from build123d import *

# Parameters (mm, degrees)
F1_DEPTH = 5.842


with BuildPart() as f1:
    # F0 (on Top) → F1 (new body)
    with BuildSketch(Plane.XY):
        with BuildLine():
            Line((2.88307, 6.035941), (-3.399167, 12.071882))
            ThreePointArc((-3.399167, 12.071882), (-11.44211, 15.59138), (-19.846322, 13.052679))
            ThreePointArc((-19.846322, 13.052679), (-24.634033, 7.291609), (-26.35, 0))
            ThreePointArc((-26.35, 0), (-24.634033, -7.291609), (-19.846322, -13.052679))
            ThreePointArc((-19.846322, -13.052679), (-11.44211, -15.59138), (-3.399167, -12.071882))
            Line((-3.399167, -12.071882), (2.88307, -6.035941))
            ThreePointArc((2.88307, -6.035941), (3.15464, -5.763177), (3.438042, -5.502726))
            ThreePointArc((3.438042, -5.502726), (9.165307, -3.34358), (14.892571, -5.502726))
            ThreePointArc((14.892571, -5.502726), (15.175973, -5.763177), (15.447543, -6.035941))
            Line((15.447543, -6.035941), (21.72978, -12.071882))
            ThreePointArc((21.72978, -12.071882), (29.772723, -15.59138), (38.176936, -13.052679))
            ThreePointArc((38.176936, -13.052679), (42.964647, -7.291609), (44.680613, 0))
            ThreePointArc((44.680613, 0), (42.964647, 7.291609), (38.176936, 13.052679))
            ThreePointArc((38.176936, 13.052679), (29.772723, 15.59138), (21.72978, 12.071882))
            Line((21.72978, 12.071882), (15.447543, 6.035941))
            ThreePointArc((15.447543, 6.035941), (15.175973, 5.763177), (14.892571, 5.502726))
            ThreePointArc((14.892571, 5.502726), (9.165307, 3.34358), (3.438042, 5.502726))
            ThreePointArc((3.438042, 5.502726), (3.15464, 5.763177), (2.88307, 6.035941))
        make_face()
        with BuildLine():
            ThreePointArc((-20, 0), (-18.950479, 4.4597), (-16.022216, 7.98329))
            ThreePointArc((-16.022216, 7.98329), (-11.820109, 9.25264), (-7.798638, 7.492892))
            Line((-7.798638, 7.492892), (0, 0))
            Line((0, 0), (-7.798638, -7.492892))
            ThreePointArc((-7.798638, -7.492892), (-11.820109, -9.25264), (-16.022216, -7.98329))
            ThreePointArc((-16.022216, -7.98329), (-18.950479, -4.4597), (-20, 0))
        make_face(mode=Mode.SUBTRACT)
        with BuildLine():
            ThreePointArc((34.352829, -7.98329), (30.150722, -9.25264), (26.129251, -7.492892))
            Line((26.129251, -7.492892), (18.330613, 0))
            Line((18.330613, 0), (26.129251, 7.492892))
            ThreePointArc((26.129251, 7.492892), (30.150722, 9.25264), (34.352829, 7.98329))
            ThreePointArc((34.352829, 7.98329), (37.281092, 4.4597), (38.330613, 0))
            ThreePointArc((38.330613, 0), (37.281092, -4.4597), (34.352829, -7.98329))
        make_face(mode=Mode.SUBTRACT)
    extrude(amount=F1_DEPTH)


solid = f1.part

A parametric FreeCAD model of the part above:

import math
import FreeCAD as App
import Part
import Sketcher
from FreeCAD import Vector
Q = App.Units.Quantity

doc = App.newDocument("Part")
body = doc.addObject("PartDesign::Body", "Body")

# Sketch on XY plane
sketch1 = body.newObject("Sketcher::SketchObject", "Sketch")
sketch1.AttachmentSupport = (doc.getObject("XY_Plane"), [""])
sketch1.MapMode = "FlatFace"
sketch1.addGeometry([
    Part.LineSegment(Vector(2.88307, 6.035941, 0), Vector(-3.399167, 12.071882, 0)),  # 0
    Part.ArcOfCircle(Part.Circle(Vector(-12.198108, 2.913904, 0), Vector(0, 0, 1), 12.699997), math.radians(46.145438), math.radians(127.02918)),  # 1
    Part.ArcOfCircle(Part.Circle(Vector(-9.999998, -0.000002, 0), Vector(0, 0, 1), 16.350002), math.radians(127.029173), math.radians(179.999994)),  # 2
    Part.ArcOfCircle(Part.Circle(Vector(-9.999998, 0.000002, 0), Vector(0, 0, 1), 16.350002), math.radians(-179.999994), math.radians(-127.029173)),  # 3
    Part.ArcOfCircle(Part.Circle(Vector(-12.198108, -2.913904, 0), Vector(0, 0, 1), 12.699997), math.radians(-127.02918), math.radians(-46.145438)),  # 4
    Part.LineSegment(Vector(-3.399167, -12.071882, 0), Vector(2.88307, -6.035941, 0)),  # 5
    Part.ArcOfCircle(Part.Circle(Vector(9.165452, -12.019249, 0), Vector(0, 0, 1), 8.67573), math.radians(131.312423), math.radians(136.396761)),  # 6
    Part.ArcOfCircle(Part.Circle(Vector(9.165306, -12.01911, 0), Vector(0, 0, 1), 8.67553), math.radians(48.687687), math.radians(131.312313)),  # 7
    Part.ArcOfCircle(Part.Circle(Vector(9.165161, -12.019249, 0), Vector(0, 0, 1), 8.67573), math.radians(43.603239), math.radians(48.687577)),  # 8
    Part.LineSegment(Vector(15.447543, -6.035941, 0), Vector(21.72978, -12.071882, 0)),  # 9
    Part.ArcOfCircle(Part.Circle(Vector(30.528722, -2.913903, 0), Vector(0, 0, 1), 12.699998), math.radians(-133.85456), math.radians(-52.970821)),  # 10
    Part.ArcOfCircle(Part.Circle(Vector(28.330616, -0.000001, 0), Vector(0, 0, 1), 16.349997), math.radians(-52.970831), math.radians(0.000005)),  # 11
    Part.ArcOfCircle(Part.Circle(Vector(28.330616, 0.000001, 0), Vector(0, 0, 1), 16.349997), math.radians(-0.000005), math.radians(52.970831)),  # 12
    Part.ArcOfCircle(Part.Circle(Vector(30.528722, 2.913903, 0), Vector(0, 0, 1), 12.699998), math.radians(52.970821), math.radians(133.85456)),  # 13
    Part.LineSegment(Vector(21.72978, 12.071882, 0), Vector(15.447543, 6.035941, 0)),  # 14
    Part.ArcOfCircle(Part.Circle(Vector(9.165161, 12.019249, 0), Vector(0, 0, 1), 8.67573), math.radians(-48.687577), math.radians(-43.603239)),  # 15
    Part.ArcOfCircle(Part.Circle(Vector(9.165306, 12.01911, 0), Vector(0, 0, 1), 8.67553), math.radians(-131.312313), math.radians(-48.687687)),  # 16
    Part.ArcOfCircle(Part.Circle(Vector(9.165452, 12.019249, 0), Vector(0, 0, 1), 8.67573), math.radians(-136.396761), math.radians(-131.312423)),  # 17
    Part.ArcOfCircle(Part.Circle(Vector(28.330611, 0.000001, 0), Vector(0, 0, 1), 10.000002), math.radians(-52.970821), math.radians(-0.000003)),  # 18
    Part.ArcOfCircle(Part.Circle(Vector(30.528722, -2.913899, 0), Vector(0, 0, 1), 6.350001), math.radians(-133.854539), math.radians(-52.970835)),  # 19
    Part.LineSegment(Vector(26.129251, -7.492892, 0), Vector(18.330613, 0, 0)),  # 20
    Part.LineSegment(Vector(18.330613, 0, 0), Vector(26.129251, 7.492892, 0)),  # 21
    Part.ArcOfCircle(Part.Circle(Vector(30.528722, 2.913899, 0), Vector(0, 0, 1), 6.350001), math.radians(52.970835), math.radians(133.854539)),  # 22
    Part.ArcOfCircle(Part.Circle(Vector(28.330611, -0.000001, 0), Vector(0, 0, 1), 10.000002), math.radians(0.000003), math.radians(52.970821)),  # 23
    Part.ArcOfCircle(Part.Circle(Vector(-9.999998, 0.000001, 0), Vector(0, 0, 1), 10.000002), math.radians(-179.999997), math.radians(-127.029179)),  # 24
    Part.ArcOfCircle(Part.Circle(Vector(-9.999998, -0.000001, 0), Vector(0, 0, 1), 10.000002), math.radians(127.029179), math.radians(179.999997)),  # 25
    Part.ArcOfCircle(Part.Circle(Vector(-12.198109, 2.913899, 0), Vector(0, 0, 1), 6.350001), math.radians(46.145461), math.radians(127.029165)),  # 26
    Part.LineSegment(Vector(-7.798638, 7.492892, 0), Vector(0, 0, 0)),  # 27
    Part.LineSegment(Vector(0, 0, 0), Vector(-7.798638, -7.492892, 0)),  # 28
    Part.ArcOfCircle(Part.Circle(Vector(-12.198109, -2.913899, 0), Vector(0, 0, 1), 6.350001), math.radians(-127.029165), math.radians(-46.145461)),  # 29
], False)
sketch1.addConstraint([
    Sketcher.Constraint("Coincident", 0, 2, 1, 1),
    Sketcher.Constraint("Coincident", 1, 2, 2, 1),
    Sketcher.Constraint("Coincident", 2, 2, 3, 1),
    Sketcher.Constraint("Coincident", 3, 2, 4, 1),
    Sketcher.Constraint("Coincident", 4, 2, 5, 1),
    Sketcher.Constraint("Coincident", 5, 2, 6, 2),
    Sketcher.Constraint("Coincident", 6, 1, 7, 2),
    Sketcher.Constraint("Coincident", 7, 1, 8, 2),
    Sketcher.Constraint("Coincident", 8, 1, 9, 1),
    Sketcher.Constraint("Coincident", 9, 2, 10, 1),
    Sketcher.Constraint("Coincident", 10, 2, 11, 1),
    Sketcher.Constraint("Coincident", 11, 2, 12, 1),
    Sketcher.Constraint("Coincident", 12, 2, 13, 1),
    Sketcher.Constraint("Coincident", 13, 2, 14, 1),
    Sketcher.Constraint("Coincident", 14, 2, 15, 2),
    Sketcher.Constraint("Coincident", 15, 1, 16, 2),
    Sketcher.Constraint("Coincident", 16, 1, 17, 2),
    Sketcher.Constraint("Coincident", 17, 1, 0, 1),
    Sketcher.Constraint("Coincident", 18, 1, 19, 2),
    Sketcher.Constraint("Coincident", 19, 1, 20, 1),
    Sketcher.Constraint("Coincident", 20, 2, 21, 1),
    Sketcher.Constraint("Coincident", 21, 2, 22, 2),
    Sketcher.Constraint("Coincident", 22, 1, 23, 2),
    Sketcher.Constraint("Coincident", 23, 1, 18, 2),
    Sketcher.Constraint("Coincident", 24, 1, 25, 2),
    Sketcher.Constraint("Coincident", 25, 1, 26, 2),
    Sketcher.Constraint("Coincident", 26, 1, 27, 1),
    Sketcher.Constraint("Coincident", 27, 2, 28, 1),
    Sketcher.Constraint("Coincident", 28, 2, 29, 2),
    Sketcher.Constraint("Coincident", 29, 1, 24, 2),
    Sketcher.Constraint("Coincident", 27, 2, -1, 1),
    Sketcher.Constraint("Coincident", 3, 3, 2, 3),
    Sketcher.Constraint("Coincident", 12, 3, 11, 3),
    Sketcher.Constraint("Coincident", 18, 3, 11, 3),
    Sketcher.Constraint("Coincident", 19, 3, 10, 3),
    Sketcher.Constraint("Coincident", 22, 3, 13, 3),
    Sketcher.Constraint("Coincident", 23, 3, 11, 3),
    Sketcher.Constraint("Coincident", 24, 3, 2, 3),
    Sketcher.Constraint("Coincident", 25, 3, 2, 3),
    Sketcher.Constraint("Coincident", 26, 3, 1, 3),
    Sketcher.Constraint("Coincident", 29, 3, 4, 3),
    Sketcher.Constraint("PointOnObject", 2, 3, -1),
    Sketcher.Constraint("PointOnObject", 11, 3, -1),
    Sketcher.Constraint("PointOnObject", 2, 2, -1),
    Sketcher.Constraint("PointOnObject", 11, 2, -1),
    Sketcher.Constraint("PointOnObject", 20, 2, -1),
    Sketcher.Constraint("PointOnObject", 23, 1, -1),
    Sketcher.Constraint("PointOnObject", 24, 1, -1),
    Sketcher.Constraint("Radius", 1, Q("0.4999999 in")),
    Sketcher.Constraint("Radius", 4, Q("0.4999999 in")),
    Sketcher.Constraint("Radius", 10, Q("0.4999999 in")),
    Sketcher.Constraint("Radius", 13, Q("0.4999999 in")),
    Sketcher.Constraint("Radius", 19, Q("0.2500001 in")),
    Sketcher.Constraint("Radius", 26, Q("0.2500001 in")),
    Sketcher.Constraint("Radius", 18, 10.000002),
    Sketcher.Constraint("Radius", 24, 10.000002),
    Sketcher.Constraint("Radius", 6, 8.67573),
    Sketcher.Constraint("Radius", 7, 8.67553),
    Sketcher.Constraint("Radius", 8, 8.67573),
    Sketcher.Constraint("Radius", 15, 8.67573),
    Sketcher.Constraint("Radius", 16, 8.67553),
    Sketcher.Constraint("Radius", 17, 8.67573),
    Sketcher.Constraint("DistanceY", 19, 3, -1, 1, 2.913899),
    Sketcher.Constraint("DistanceY", -1, 1, 22, 3, 2.913899),
    Sketcher.Constraint("DistanceX", 24, 3, -1, 1, 9.999998),
    Sketcher.Constraint("DistanceY", -1, 1, 26, 3, 2.913899),
    Sketcher.Constraint("DistanceY", 29, 3, -1, 1, 2.913899),
    Sketcher.Constraint("DistanceX", 5, 2, 7, 1, 12.009501),
    Sketcher.Constraint("DistanceX", 6, 1, 8, 1, 12.009501),
    Sketcher.Constraint("DistanceX", 20, 2, 18, 3, 9.999998),
    Sketcher.Constraint("Distance", 0, 8.712008),
    Sketcher.Constraint("Distance", 5, 8.712008),
    Sketcher.Constraint("Distance", 9, 8.712008),
    Sketcher.Constraint("Distance", 14, 8.712008),
    Sketcher.Constraint("DistanceX", -1, 1, 6, 3, 9.165452),
    Sketcher.Constraint("DistanceY", 6, 3, -1, 1, 12.019249),
    Sketcher.Constraint("DistanceY", 7, 3, -1, 1, 12.01911),
    Sketcher.Constraint("DistanceX", -1, 1, 8, 3, 9.165161),
    Sketcher.Constraint("DistanceX", -1, 1, 10, 3, 30.528722),
    Sketcher.Constraint("DistanceX", -1, 1, 15, 3, 9.165161),
    Sketcher.Constraint("DistanceY", -1, 1, 15, 3, 12.019249),
    Sketcher.Constraint("DistanceY", -1, 1, 16, 3, 12.01911),
    Sketcher.Constraint("DistanceX", -1, 1, 17, 3, 9.165452),
    Sketcher.Constraint("DistanceY", -1, 1, 1, 2, 13.052679),
    Sketcher.Constraint("DistanceY", 3, 2, -1, 1, 13.052679),
    Sketcher.Constraint("DistanceX", -1, 1, 5, 2, 2.88307),
    Sketcher.Constraint("DistanceX", -1, 1, 6, 1, 3.438042),
    Sketcher.Constraint("DistanceY", 10, 2, -1, 1, 13.052679),
    Sketcher.Constraint("DistanceY", -1, 1, 12, 2, 13.052679),
    Sketcher.Constraint("DistanceX", -1, 1, 13, 2, 21.72978),
    Sketcher.Constraint("DistanceX", -1, 1, 15, 1, 14.892571),
    Sketcher.Constraint("DistanceX", -1, 1, 17, 1, 2.88307),
    Sketcher.Constraint("DistanceX", -1, 1, 18, 1, 34.352829),
    Sketcher.Constraint("DistanceX", -1, 1, 19, 1, 26.129251),
    Sketcher.Constraint("DistanceX", -1, 1, 21, 2, 26.129251),
    Sketcher.Constraint("DistanceX", -1, 1, 22, 1, 34.352829),
    Sketcher.Constraint("DistanceY", -1, 1, 25, 1, 7.98329),
    Sketcher.Constraint("DistanceX", 26, 1, -1, 1, 7.798638),
    Sketcher.Constraint("DistanceX", 28, 2, -1, 1, 7.798638),
    Sketcher.Constraint("DistanceY", 29, 1, -1, 1, 7.98329),
    Sketcher.Constraint("DistanceX", 16, 1, 15, 3, 5.727119),
])
pad1 = body.newObject("PartDesign::Pad", "Pad")
pad1.Profile = sketch1
pad1.Length = Q("0.23 in")

doc.recompute()
